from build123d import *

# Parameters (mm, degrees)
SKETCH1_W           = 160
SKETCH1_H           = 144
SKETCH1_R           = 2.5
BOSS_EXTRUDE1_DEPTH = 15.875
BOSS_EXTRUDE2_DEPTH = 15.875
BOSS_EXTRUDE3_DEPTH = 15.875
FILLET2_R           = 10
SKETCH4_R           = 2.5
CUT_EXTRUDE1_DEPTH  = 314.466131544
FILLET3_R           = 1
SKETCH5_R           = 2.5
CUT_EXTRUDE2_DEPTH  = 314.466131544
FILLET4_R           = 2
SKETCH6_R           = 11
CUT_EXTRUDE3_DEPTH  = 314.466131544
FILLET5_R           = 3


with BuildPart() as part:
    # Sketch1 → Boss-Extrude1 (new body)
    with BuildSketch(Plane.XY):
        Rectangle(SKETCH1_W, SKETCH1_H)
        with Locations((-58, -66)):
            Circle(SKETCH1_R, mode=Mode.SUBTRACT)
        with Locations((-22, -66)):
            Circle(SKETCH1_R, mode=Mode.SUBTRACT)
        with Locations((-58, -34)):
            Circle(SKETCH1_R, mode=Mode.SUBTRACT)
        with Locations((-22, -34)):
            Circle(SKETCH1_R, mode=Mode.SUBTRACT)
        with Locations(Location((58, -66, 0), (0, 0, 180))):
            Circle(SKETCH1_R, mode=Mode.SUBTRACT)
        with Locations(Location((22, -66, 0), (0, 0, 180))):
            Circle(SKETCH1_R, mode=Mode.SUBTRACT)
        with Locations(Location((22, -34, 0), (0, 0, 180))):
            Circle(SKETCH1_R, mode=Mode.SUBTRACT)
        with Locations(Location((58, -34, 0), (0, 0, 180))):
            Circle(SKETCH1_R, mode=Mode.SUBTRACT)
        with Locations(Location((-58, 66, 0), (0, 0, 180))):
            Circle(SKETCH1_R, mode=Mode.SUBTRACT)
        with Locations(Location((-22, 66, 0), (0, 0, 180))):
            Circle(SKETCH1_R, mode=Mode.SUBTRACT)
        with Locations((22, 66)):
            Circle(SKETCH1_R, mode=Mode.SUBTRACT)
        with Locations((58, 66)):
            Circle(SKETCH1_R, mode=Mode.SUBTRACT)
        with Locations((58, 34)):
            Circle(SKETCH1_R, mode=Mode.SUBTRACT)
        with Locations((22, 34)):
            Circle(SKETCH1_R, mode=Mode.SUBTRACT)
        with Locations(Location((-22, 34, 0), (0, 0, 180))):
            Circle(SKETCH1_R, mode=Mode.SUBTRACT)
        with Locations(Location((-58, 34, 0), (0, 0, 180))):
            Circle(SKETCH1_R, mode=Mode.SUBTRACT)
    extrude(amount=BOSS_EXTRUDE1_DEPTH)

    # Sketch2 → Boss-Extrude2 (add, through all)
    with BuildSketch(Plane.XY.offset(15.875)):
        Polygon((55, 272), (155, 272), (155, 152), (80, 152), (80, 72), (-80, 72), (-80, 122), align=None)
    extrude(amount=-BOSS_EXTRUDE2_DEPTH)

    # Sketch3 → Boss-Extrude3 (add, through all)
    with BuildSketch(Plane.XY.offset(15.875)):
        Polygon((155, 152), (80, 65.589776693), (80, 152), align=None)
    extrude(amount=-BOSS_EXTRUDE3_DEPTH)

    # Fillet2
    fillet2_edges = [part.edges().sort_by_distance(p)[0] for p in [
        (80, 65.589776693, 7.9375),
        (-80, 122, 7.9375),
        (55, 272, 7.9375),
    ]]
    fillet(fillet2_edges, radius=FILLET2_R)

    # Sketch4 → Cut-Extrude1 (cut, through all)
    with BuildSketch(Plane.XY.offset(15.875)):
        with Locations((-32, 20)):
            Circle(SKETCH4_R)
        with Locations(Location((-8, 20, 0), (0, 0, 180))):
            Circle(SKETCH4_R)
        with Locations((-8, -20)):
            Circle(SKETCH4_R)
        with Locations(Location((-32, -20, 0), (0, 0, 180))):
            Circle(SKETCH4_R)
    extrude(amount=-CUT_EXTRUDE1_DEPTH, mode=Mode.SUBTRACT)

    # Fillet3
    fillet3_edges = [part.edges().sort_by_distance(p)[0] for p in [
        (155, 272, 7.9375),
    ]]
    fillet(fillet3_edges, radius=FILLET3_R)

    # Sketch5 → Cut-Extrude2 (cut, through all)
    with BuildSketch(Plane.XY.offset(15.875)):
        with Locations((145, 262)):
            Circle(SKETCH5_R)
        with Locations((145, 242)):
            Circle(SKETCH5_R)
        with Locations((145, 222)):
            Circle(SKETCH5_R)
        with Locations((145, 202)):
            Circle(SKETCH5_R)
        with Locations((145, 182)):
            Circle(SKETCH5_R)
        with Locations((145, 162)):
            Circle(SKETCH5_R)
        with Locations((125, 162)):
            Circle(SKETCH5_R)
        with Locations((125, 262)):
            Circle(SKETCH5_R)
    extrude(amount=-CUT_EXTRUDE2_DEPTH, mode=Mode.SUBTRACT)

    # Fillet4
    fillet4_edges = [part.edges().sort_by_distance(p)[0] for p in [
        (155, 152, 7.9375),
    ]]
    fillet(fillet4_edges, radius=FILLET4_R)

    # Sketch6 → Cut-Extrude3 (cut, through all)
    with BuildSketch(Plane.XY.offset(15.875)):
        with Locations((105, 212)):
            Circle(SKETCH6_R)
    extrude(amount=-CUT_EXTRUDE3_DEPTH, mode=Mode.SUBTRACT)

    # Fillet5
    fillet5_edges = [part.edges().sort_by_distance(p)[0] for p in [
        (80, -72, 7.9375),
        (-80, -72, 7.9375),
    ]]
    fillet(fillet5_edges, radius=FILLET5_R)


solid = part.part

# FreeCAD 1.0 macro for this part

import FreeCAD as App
import Part
import Sketcher
from FreeCAD import Vector
Q = App.Units.Quantity


def edges_at(feature, points):
    """Names of the edges that pass closest to the given points."""
    edges = feature.Shape.Edges
    near = lambda p: min(range(len(edges)), key=lambda i: edges[i].distToShape(Part.Vertex(*p))[0])
    return sorted({f"Edge{near(p) + 1}" for p in points})


def add_polygon(sketch, points):
    """Adds a closed chain of lines whose ends are joined by coincident constraints."""
    first, n = sketch.GeometryCount, len(points)
    for a, b in zip(points, points[1:] + points[:1]):
        sketch.addGeometry(Part.LineSegment(App.Vector(*a, 0), App.Vector(*b, 0)), False)
    for i in range(n):
        sketch.addConstraint(Sketcher.Constraint("Coincident", first + i, 2, first + (i + 1) % n, 1))

doc = App.newDocument("Part")
params = doc.addObject("Spreadsheet::Sheet", "Params")
for row, (alias, value) in enumerate([
    ("sketch1_diameter", "5 mm"),
    ("sketch1_width", "160 mm"),
    ("sketch1_height", "144 mm"),
    ("pad1_length", "15.875 mm"),
    ("sketch2_width", "100 mm"),
    ("sketch2_width2", "160 mm"),
    ("sketch2_width3", "75 mm"),
    ("sketch2_height", "50 mm"),
    ("sketch2_height2", "80 mm"),
    ("pad2_length", "15.875 mm"),
    ("sketch3_width", "75 mm"),
    ("pad3_length", "15.875 mm"),
    ("fillet_radius", "10 mm"),
    ("sketch4_diameter", "5 mm"),
    ("fillet2_radius", "1 mm"),
    ("sketch5_diameter", "5 mm"),
    ("fillet3_radius", "2 mm"),
    ("sketch6_diameter", "22 mm"),
    ("fillet4_radius", "3 mm"),
], start=1):
    params.set(f"A{row}", alias)
    params.set(f"B{row}", "=" + value)
    params.setAlias(f"B{row}", alias)

body = doc.addObject("PartDesign::Body", "Body")

# Sketch on XY plane
sketch1 = body.newObject("Sketcher::SketchObject", "Sketch")
sketch1.AttachmentSupport = (doc.getObject("XY_Plane"), [""])
sketch1.MapMode = "FlatFace"
add_polygon(sketch1, [(-80, 72), (-80, -72), (80, -72), (80, 72)])  # lines 0-3
sketch1.addGeometry(Part.Circle(Vector(-58, -66, 0), Vector(0, 0, 1), 2.5), False)  # 4
sketch1.addGeometry(Part.Circle(Vector(-22, -66, 0), Vector(0, 0, 1), 2.5), False)  # 5
sketch1.addGeometry(Part.Circle(Vector(-58, -34, 0), Vector(0, 0, 1), 2.5), False)  # 6
sketch1.addGeometry(Part.Circle(Vector(-22, -34, 0), Vector(0, 0, 1), 2.5), False)  # 7
sketch1.addGeometry(Part.Circle(Vector(22, -66, 0), Vector(0, 0, 1), 2.5), False)  # 8
sketch1.addGeometry(Part.Circle(Vector(58, -66, 0), Vector(0, 0, 1), 2.5), False)  # 9
sketch1.addGeometry(Part.Circle(Vector(22, -34, 0), Vector(0, 0, 1), 2.5), False)  # 10
sketch1.addGeometry(Part.Circle(Vector(58, -34, 0), Vector(0, 0, 1), 2.5), False)  # 11
sketch1.addGeometry(Part.Circle(Vector(-58, 34, 0), Vector(0, 0, 1), 2.5), False)  # 12
sketch1.addGeometry(Part.Circle(Vector(-22, 34, 0), Vector(0, 0, 1), 2.5), False)  # 13
sketch1.addGeometry(Part.Circle(Vector(-58, 66, 0), Vector(0, 0, 1), 2.5), False)  # 14
sketch1.addGeometry(Part.Circle(Vector(-22, 66, 0), Vector(0, 0, 1), 2.5), False)  # 15
sketch1.addGeometry(Part.Circle(Vector(22, 34, 0), Vector(0, 0, 1), 2.5), False)  # 16
sketch1.addGeometry(Part.Circle(Vector(58, 34, 0), Vector(0, 0, 1), 2.5), False)  # 17
sketch1.addGeometry(Part.Circle(Vector(22, 66, 0), Vector(0, 0, 1), 2.5), False)  # 18
sketch1.addGeometry(Part.Circle(Vector(58, 66, 0), Vector(0, 0, 1), 2.5), False)  # 19
sketch1.addConstraint([
    Sketcher.Constraint("Vertical", 0),
    Sketcher.Constraint("Horizontal", 1),
    Sketcher.Constraint("Vertical", 2),
    Sketcher.Constraint("Horizontal", 3),
    Sketcher.Constraint("Equal", 4, 5),
    Sketcher.Constraint("Equal", 5, 6),
    Sketcher.Constraint("Equal", 6, 7),
    Sketcher.Constraint("Equal", 7, 8),
    Sketcher.Constraint("Equal", 8, 9),
    Sketcher.Constraint("Equal", 9, 10),
    Sketcher.Constraint("Equal", 10, 11),
    Sketcher.Constraint("Equal", 11, 12),
    Sketcher.Constraint("Equal", 12, 13),
    Sketcher.Constraint("Equal", 13, 14),
    Sketcher.Constraint("Equal", 14, 15),
    Sketcher.Constraint("Equal", 15, 16),
    Sketcher.Constraint("Equal", 16, 17),
    Sketcher.Constraint("Equal", 17, 18),
    Sketcher.Constraint("Equal", 18, 19),
    Sketcher.Constraint("Symmetric", 11, 3, 12, 3, -1, 1),
    Sketcher.Constraint("Symmetric", 10, 3, 13, 3, -1, 1),
    Sketcher.Constraint("Symmetric", 9, 3, 14, 3, -1, 1),
    Sketcher.Constraint("Symmetric", 8, 3, 15, 3, -1, 1),
    Sketcher.Constraint("Symmetric", 7, 3, 16, 3, -1, 1),
    Sketcher.Constraint("Symmetric", 6, 3, 17, 3, -1, 1),
    Sketcher.Constraint("Symmetric", 5, 3, 18, 3, -1, 1),
    Sketcher.Constraint("Symmetric", 4, 3, 19, 3, -1, 1),
    Sketcher.Constraint("Symmetric", 0, 2, 2, 2, -1, 1),
    Sketcher.Constraint("Symmetric", 5, 3, 8, 3, -2),
    Sketcher.Constraint("Symmetric", 4, 3, 9, 3, -2),
    Sketcher.Constraint("Symmetric", 7, 3, 10, 3, -2),
    Sketcher.Constraint("Symmetric", 6, 3, 11, 3, -2),
    Sketcher.Constraint("Horizontal", 4, 3, 5, 3),
    Sketcher.Constraint("Horizontal", 6, 3, 7, 3),
    Sketcher.Constraint("Vertical", 4, 3, 6, 3),
    Sketcher.Constraint("Vertical", 5, 3, 7, 3),
    Sketcher.Constraint("Diameter", 4, Q("5 mm")),
    Sketcher.Constraint("DistanceX", 1, 1, 1, 2, Q("160 mm")),
    Sketcher.Constraint("DistanceY", 0, 2, 0, 1, Q("144 mm")),
    Sketcher.Constraint("DistanceX", 4, 3, -1, 1, Q("58 mm")),
    Sketcher.Constraint("DistanceY", 4, 3, -1, 1, Q("66 mm")),
    Sketcher.Constraint("DistanceX", 5, 3, -1, 1, Q("22 mm")),
    Sketcher.Constraint("DistanceY", 6, 3, -1, 1, Q("34 mm")),
])
sketch1.setExpression("Constraints[40]", "Params.sketch1_diameter")
sketch1.setExpression("Constraints[41]", "Params.sketch1_width")
sketch1.setExpression("Constraints[42]", "Params.sketch1_height")
pad1 = body.newObject("PartDesign::Pad", "Pad")
pad1.Profile = sketch1
pad1.setExpression("Length", "Params.pad1_length")

# Sketch on XY plane
sketch2 = body.newObject("Sketcher::SketchObject", "Sketch001")
sketch2.AttachmentSupport = (doc.getObject("XY_Plane"), [""])
sketch2.MapMode = "FlatFace"
sketch2.AttachmentOffset = App.Placement(Vector(0, 0, 15.875), App.Rotation())
add_polygon(sketch2, [(155, 272), (55, 272), (-80, 122), (-80, 72), (80, 72), (80, 152), (155, 152)])  # lines 0-6
sketch2.addConstraint([
    Sketcher.Constraint("Horizontal", 0),
    Sketcher.Constraint("Vertical", 2),
    Sketcher.Constraint("Horizontal", 3),
    Sketcher.Constraint("Vertical", 4),
    Sketcher.Constraint("Horizontal", 5),
    Sketcher.Constraint("Vertical", 6),
    Sketcher.Constraint("DistanceX", 0, 2, 0, 1, Q("100 mm")),
    Sketcher.Constraint("DistanceX", 3, 1, 3, 2, Q("160 mm")),
    Sketcher.Constraint("DistanceX", 5, 1, 5, 2, Q("75 mm")),
    Sketcher.Constraint("DistanceY", 2, 2, 2, 1, Q("50 mm")),
    Sketcher.Constraint("DistanceY", 4, 1, 4, 2, Q("80 mm")),
    Sketcher.Constraint("DistanceY", 6, 1, 6, 2, Q("120 mm")),
    Sketcher.Constraint("DistanceX", -1, 1, 0, 2, Q("55 mm")),
    Sketcher.Constraint("DistanceY", -1, 1, 0, 2, Q("272 mm")),
])
sketch2.setExpression("Constraints[13]", "Params.sketch2_width")
sketch2.setExpression("Constraints[14]", "Params.sketch2_width2")
sketch2.setExpression("Constraints[15]", "Params.sketch2_width3")
sketch2.setExpression("Constraints[16]", "Params.sketch2_height")
sketch2.setExpression("Constraints[17]", "Params.sketch2_height2")
pad2 = body.newObject("PartDesign::Pad", "Pad001")
pad2.Profile = sketch2
pad2.setExpression("Length", "Params.pad2_length")
pad2.Reversed = True

# Sketch on XY plane
sketch3 = body.newObject("Sketcher::SketchObject", "Sketch002")
sketch3.AttachmentSupport = (doc.getObject("XY_Plane"), [""])
sketch3.MapMode = "FlatFace"
sketch3.AttachmentOffset = App.Placement(Vector(0, 0, 15.875), App.Rotation())
add_polygon(sketch3, [(80, 66), (155, 152), (80, 152)])  # lines 0-2
sketch3.addConstraint([
    Sketcher.Constraint("Horizontal", 1),
    Sketcher.Constraint("Vertical", 2),
    Sketcher.Constraint("DistanceX", 1, 2, 1, 1, Q("75 mm")),
    Sketcher.Constraint("DistanceX", -1, 1, 0, 2, Q("155 mm")),
    Sketcher.Constraint("DistanceY", -1, 1, 0, 2, Q("152 mm")),
    Sketcher.Constraint("DistanceY", 2, 2, 2, 1, Q("86.410223 mm")),
])
sketch3.setExpression("Constraints[5]", "Params.sketch3_width")
pad3 = body.newObject("PartDesign::Pad", "Pad002")
pad3.Profile = sketch3
pad3.setExpression("Length", "Params.pad3_length")
pad3.Reversed = True
doc.recompute()

fillet = body.newObject("PartDesign::Fillet", "Fillet")
fillet.Base = (pad3, edges_at(pad3, [(80, 65.59, 7.938), (-80, 122, 7.938), (55, 272, 7.938)]))
fillet.setExpression("Radius", "Params.fillet_radius")

# Sketch on XY plane
sketch4 = body.newObject("Sketcher::SketchObject", "Sketch003")
sketch4.AttachmentSupport = (doc.getObject("XY_Plane"), [""])
sketch4.MapMode = "FlatFace"
sketch4.AttachmentOffset = App.Placement(Vector(0, 0, 15.875), App.Rotation())
sketch4.addGeometry([
    Part.Circle(Vector(-32, 20, 0), Vector(0, 0, 1), 2.5),
    Part.Circle(Vector(-8, 20, 0), Vector(0, 0, 1), 2.5),
    Part.Circle(Vector(-8, -20, 0), Vector(0, 0, 1), 2.5),
    Part.Circle(Vector(-32, -20, 0), Vector(0, 0, 1), 2.5),
], False)
sketch4.addConstraint([
    Sketcher.Constraint("Equal", 0, 1),
    Sketcher.Constraint("Equal", 1, 2),
    Sketcher.Constraint("Equal", 2, 3),
    Sketcher.Constraint("Symmetric", 1, 3, 2, 3, -1),
    Sketcher.Constraint("Symmetric", 0, 3, 3, 3, -1),
    Sketcher.Constraint("Horizontal", 0, 3, 1, 3),
    Sketcher.Constraint("Diameter", 0, Q("5 mm")),
    Sketcher.Constraint("DistanceX", 0, 3, -1, 1, Q("32 mm")),
    Sketcher.Constraint("DistanceY", -1, 1, 0, 3, Q("20 mm")),
    Sketcher.Constraint("DistanceX", 1, 3, -1, 1, Q("8 mm")),
])
sketch4.setExpression("Constraints[6]", "Params.sketch4_diameter")
pocket1 = body.newObject("PartDesign::Pocket", "Pocket")
pocket1.Profile = sketch4
pocket1.Type = "ThroughAll"
doc.recompute()

fillet2 = body.newObject("PartDesign::Fillet", "Fillet001")
fillet2.Base = (pocket1, edges_at(pocket1, [(155, 272, 7.938)]))
fillet2.setExpression("Radius", "Params.fillet2_radius")

# Sketch on XY plane
sketch5 = body.newObject("Sketcher::SketchObject", "Sketch004")
sketch5.AttachmentSupport = (doc.getObject("XY_Plane"), [""])
sketch5.MapMode = "FlatFace"
sketch5.AttachmentOffset = App.Placement(Vector(0, 0, 15.875), App.Rotation())
sketch5.addGeometry([
    Part.Circle(Vector(145, 262, 0), Vector(0, 0, 1), 2.5),  # 0
    Part.Circle(Vector(145, 242, 0), Vector(0, 0, 1), 2.5),  # 1
    Part.Circle(Vector(145, 222, 0), Vector(0, 0, 1), 2.5),  # 2
    Part.Circle(Vector(145, 202, 0), Vector(0, 0, 1), 2.5),  # 3
    Part.Circle(Vector(145, 182, 0), Vector(0, 0, 1), 2.5),  # 4
    Part.Circle(Vector(145, 162, 0), Vector(0, 0, 1), 2.5),  # 5
    Part.Circle(Vector(125, 162, 0), Vector(0, 0, 1), 2.5),  # 6
    Part.Circle(Vector(125, 262, 0), Vector(0, 0, 1), 2.5),  # 7
], False)
sketch5.addConstraint([
    Sketcher.Constraint("Equal", 0, 1),
    Sketcher.Constraint("Equal", 1, 2),
    Sketcher.Constraint("Equal", 2, 3),
    Sketcher.Constraint("Equal", 3, 4),
    Sketcher.Constraint("Equal", 4, 5),
    Sketcher.Constraint("Equal", 5, 6),
    Sketcher.Constraint("Equal", 6, 7),
    Sketcher.Constraint("Horizontal", 5, 3, 6, 3),
    Sketcher.Constraint("Horizontal", 0, 3, 7, 3),
    Sketcher.Constraint("Vertical", 0, 3, 1, 3),
    Sketcher.Constraint("Vertical", 1, 3, 2, 3),
    Sketcher.Constraint("Vertical", 2, 3, 3, 3),
    Sketcher.Constraint("Vertical", 3, 3, 4, 3),
    Sketcher.Constraint("Vertical", 4, 3, 5, 3),
    Sketcher.Constraint("Vertical", 6, 3, 7, 3),
    Sketcher.Constraint("Diameter", 0, Q("5 mm")),
    Sketcher.Constraint("DistanceX", -1, 1, 0, 3, Q("145 mm")),
    Sketcher.Constraint("DistanceY", -1, 1, 0, 3, Q("262 mm")),
    Sketcher.Constraint("DistanceY", -1, 1, 1, 3, Q("242 mm")),
    Sketcher.Constraint("DistanceY", -1, 1, 2, 3, Q("222 mm")),
    Sketcher.Constraint("DistanceY", -1, 1, 3, 3, Q("202 mm")),
    Sketcher.Constraint("DistanceY", -1, 1, 4, 3, Q("182 mm")),
    Sketcher.Constraint("DistanceY", -1, 1, 5, 3, Q("162 mm")),
    Sketcher.Constraint("DistanceX", -1, 1, 6, 3, Q("125 mm")),
])
sketch5.setExpression("Constraints[15]", "Params.sketch5_diameter")
pocket2 = body.newObject("PartDesign::Pocket", "Pocket001")
pocket2.Profile = sketch5
pocket2.Type = "ThroughAll"
doc.recompute()

fillet3 = body.newObject("PartDesign::Fillet", "Fillet002")
fillet3.Base = (pocket2, edges_at(pocket2, [(155, 152, 7.938)]))
fillet3.setExpression("Radius", "Params.fillet3_radius")

# Sketch on XY plane
sketch6 = body.newObject("Sketcher::SketchObject", "Sketch005")
sketch6.AttachmentSupport = (doc.getObject("XY_Plane"), [""])
sketch6.MapMode = "FlatFace"
sketch6.AttachmentOffset = App.Placement(Vector(0, 0, 15.875), App.Rotation())
sketch6.addGeometry(Part.Circle(Vector(105, 212, 0), Vector(0, 0, 1), 11), False)
sketch6.addConstraint([
    Sketcher.Constraint("Diameter", 0, Q("22 mm")),
    Sketcher.Constraint("DistanceX", -1, 1, 0, 3, Q("105 mm")),
    Sketcher.Constraint("DistanceY", -1, 1, 0, 3, Q("212 mm")),
])
sketch6.setExpression("Constraints[0]", "Params.sketch6_diameter")
pocket3 = body.newObject("PartDesign::Pocket", "Pocket002")
pocket3.Profile = sketch6
pocket3.Type = "ThroughAll"
doc.recompute()

fillet4 = body.newObject("PartDesign::Fillet", "Fillet003")
fillet4.Base = (pocket3, edges_at(pocket3, [(80, -72, 7.938), (-80, -72, 7.938)]))
fillet4.setExpression("Radius", "Params.fillet4_radius")

doc.recompute()
